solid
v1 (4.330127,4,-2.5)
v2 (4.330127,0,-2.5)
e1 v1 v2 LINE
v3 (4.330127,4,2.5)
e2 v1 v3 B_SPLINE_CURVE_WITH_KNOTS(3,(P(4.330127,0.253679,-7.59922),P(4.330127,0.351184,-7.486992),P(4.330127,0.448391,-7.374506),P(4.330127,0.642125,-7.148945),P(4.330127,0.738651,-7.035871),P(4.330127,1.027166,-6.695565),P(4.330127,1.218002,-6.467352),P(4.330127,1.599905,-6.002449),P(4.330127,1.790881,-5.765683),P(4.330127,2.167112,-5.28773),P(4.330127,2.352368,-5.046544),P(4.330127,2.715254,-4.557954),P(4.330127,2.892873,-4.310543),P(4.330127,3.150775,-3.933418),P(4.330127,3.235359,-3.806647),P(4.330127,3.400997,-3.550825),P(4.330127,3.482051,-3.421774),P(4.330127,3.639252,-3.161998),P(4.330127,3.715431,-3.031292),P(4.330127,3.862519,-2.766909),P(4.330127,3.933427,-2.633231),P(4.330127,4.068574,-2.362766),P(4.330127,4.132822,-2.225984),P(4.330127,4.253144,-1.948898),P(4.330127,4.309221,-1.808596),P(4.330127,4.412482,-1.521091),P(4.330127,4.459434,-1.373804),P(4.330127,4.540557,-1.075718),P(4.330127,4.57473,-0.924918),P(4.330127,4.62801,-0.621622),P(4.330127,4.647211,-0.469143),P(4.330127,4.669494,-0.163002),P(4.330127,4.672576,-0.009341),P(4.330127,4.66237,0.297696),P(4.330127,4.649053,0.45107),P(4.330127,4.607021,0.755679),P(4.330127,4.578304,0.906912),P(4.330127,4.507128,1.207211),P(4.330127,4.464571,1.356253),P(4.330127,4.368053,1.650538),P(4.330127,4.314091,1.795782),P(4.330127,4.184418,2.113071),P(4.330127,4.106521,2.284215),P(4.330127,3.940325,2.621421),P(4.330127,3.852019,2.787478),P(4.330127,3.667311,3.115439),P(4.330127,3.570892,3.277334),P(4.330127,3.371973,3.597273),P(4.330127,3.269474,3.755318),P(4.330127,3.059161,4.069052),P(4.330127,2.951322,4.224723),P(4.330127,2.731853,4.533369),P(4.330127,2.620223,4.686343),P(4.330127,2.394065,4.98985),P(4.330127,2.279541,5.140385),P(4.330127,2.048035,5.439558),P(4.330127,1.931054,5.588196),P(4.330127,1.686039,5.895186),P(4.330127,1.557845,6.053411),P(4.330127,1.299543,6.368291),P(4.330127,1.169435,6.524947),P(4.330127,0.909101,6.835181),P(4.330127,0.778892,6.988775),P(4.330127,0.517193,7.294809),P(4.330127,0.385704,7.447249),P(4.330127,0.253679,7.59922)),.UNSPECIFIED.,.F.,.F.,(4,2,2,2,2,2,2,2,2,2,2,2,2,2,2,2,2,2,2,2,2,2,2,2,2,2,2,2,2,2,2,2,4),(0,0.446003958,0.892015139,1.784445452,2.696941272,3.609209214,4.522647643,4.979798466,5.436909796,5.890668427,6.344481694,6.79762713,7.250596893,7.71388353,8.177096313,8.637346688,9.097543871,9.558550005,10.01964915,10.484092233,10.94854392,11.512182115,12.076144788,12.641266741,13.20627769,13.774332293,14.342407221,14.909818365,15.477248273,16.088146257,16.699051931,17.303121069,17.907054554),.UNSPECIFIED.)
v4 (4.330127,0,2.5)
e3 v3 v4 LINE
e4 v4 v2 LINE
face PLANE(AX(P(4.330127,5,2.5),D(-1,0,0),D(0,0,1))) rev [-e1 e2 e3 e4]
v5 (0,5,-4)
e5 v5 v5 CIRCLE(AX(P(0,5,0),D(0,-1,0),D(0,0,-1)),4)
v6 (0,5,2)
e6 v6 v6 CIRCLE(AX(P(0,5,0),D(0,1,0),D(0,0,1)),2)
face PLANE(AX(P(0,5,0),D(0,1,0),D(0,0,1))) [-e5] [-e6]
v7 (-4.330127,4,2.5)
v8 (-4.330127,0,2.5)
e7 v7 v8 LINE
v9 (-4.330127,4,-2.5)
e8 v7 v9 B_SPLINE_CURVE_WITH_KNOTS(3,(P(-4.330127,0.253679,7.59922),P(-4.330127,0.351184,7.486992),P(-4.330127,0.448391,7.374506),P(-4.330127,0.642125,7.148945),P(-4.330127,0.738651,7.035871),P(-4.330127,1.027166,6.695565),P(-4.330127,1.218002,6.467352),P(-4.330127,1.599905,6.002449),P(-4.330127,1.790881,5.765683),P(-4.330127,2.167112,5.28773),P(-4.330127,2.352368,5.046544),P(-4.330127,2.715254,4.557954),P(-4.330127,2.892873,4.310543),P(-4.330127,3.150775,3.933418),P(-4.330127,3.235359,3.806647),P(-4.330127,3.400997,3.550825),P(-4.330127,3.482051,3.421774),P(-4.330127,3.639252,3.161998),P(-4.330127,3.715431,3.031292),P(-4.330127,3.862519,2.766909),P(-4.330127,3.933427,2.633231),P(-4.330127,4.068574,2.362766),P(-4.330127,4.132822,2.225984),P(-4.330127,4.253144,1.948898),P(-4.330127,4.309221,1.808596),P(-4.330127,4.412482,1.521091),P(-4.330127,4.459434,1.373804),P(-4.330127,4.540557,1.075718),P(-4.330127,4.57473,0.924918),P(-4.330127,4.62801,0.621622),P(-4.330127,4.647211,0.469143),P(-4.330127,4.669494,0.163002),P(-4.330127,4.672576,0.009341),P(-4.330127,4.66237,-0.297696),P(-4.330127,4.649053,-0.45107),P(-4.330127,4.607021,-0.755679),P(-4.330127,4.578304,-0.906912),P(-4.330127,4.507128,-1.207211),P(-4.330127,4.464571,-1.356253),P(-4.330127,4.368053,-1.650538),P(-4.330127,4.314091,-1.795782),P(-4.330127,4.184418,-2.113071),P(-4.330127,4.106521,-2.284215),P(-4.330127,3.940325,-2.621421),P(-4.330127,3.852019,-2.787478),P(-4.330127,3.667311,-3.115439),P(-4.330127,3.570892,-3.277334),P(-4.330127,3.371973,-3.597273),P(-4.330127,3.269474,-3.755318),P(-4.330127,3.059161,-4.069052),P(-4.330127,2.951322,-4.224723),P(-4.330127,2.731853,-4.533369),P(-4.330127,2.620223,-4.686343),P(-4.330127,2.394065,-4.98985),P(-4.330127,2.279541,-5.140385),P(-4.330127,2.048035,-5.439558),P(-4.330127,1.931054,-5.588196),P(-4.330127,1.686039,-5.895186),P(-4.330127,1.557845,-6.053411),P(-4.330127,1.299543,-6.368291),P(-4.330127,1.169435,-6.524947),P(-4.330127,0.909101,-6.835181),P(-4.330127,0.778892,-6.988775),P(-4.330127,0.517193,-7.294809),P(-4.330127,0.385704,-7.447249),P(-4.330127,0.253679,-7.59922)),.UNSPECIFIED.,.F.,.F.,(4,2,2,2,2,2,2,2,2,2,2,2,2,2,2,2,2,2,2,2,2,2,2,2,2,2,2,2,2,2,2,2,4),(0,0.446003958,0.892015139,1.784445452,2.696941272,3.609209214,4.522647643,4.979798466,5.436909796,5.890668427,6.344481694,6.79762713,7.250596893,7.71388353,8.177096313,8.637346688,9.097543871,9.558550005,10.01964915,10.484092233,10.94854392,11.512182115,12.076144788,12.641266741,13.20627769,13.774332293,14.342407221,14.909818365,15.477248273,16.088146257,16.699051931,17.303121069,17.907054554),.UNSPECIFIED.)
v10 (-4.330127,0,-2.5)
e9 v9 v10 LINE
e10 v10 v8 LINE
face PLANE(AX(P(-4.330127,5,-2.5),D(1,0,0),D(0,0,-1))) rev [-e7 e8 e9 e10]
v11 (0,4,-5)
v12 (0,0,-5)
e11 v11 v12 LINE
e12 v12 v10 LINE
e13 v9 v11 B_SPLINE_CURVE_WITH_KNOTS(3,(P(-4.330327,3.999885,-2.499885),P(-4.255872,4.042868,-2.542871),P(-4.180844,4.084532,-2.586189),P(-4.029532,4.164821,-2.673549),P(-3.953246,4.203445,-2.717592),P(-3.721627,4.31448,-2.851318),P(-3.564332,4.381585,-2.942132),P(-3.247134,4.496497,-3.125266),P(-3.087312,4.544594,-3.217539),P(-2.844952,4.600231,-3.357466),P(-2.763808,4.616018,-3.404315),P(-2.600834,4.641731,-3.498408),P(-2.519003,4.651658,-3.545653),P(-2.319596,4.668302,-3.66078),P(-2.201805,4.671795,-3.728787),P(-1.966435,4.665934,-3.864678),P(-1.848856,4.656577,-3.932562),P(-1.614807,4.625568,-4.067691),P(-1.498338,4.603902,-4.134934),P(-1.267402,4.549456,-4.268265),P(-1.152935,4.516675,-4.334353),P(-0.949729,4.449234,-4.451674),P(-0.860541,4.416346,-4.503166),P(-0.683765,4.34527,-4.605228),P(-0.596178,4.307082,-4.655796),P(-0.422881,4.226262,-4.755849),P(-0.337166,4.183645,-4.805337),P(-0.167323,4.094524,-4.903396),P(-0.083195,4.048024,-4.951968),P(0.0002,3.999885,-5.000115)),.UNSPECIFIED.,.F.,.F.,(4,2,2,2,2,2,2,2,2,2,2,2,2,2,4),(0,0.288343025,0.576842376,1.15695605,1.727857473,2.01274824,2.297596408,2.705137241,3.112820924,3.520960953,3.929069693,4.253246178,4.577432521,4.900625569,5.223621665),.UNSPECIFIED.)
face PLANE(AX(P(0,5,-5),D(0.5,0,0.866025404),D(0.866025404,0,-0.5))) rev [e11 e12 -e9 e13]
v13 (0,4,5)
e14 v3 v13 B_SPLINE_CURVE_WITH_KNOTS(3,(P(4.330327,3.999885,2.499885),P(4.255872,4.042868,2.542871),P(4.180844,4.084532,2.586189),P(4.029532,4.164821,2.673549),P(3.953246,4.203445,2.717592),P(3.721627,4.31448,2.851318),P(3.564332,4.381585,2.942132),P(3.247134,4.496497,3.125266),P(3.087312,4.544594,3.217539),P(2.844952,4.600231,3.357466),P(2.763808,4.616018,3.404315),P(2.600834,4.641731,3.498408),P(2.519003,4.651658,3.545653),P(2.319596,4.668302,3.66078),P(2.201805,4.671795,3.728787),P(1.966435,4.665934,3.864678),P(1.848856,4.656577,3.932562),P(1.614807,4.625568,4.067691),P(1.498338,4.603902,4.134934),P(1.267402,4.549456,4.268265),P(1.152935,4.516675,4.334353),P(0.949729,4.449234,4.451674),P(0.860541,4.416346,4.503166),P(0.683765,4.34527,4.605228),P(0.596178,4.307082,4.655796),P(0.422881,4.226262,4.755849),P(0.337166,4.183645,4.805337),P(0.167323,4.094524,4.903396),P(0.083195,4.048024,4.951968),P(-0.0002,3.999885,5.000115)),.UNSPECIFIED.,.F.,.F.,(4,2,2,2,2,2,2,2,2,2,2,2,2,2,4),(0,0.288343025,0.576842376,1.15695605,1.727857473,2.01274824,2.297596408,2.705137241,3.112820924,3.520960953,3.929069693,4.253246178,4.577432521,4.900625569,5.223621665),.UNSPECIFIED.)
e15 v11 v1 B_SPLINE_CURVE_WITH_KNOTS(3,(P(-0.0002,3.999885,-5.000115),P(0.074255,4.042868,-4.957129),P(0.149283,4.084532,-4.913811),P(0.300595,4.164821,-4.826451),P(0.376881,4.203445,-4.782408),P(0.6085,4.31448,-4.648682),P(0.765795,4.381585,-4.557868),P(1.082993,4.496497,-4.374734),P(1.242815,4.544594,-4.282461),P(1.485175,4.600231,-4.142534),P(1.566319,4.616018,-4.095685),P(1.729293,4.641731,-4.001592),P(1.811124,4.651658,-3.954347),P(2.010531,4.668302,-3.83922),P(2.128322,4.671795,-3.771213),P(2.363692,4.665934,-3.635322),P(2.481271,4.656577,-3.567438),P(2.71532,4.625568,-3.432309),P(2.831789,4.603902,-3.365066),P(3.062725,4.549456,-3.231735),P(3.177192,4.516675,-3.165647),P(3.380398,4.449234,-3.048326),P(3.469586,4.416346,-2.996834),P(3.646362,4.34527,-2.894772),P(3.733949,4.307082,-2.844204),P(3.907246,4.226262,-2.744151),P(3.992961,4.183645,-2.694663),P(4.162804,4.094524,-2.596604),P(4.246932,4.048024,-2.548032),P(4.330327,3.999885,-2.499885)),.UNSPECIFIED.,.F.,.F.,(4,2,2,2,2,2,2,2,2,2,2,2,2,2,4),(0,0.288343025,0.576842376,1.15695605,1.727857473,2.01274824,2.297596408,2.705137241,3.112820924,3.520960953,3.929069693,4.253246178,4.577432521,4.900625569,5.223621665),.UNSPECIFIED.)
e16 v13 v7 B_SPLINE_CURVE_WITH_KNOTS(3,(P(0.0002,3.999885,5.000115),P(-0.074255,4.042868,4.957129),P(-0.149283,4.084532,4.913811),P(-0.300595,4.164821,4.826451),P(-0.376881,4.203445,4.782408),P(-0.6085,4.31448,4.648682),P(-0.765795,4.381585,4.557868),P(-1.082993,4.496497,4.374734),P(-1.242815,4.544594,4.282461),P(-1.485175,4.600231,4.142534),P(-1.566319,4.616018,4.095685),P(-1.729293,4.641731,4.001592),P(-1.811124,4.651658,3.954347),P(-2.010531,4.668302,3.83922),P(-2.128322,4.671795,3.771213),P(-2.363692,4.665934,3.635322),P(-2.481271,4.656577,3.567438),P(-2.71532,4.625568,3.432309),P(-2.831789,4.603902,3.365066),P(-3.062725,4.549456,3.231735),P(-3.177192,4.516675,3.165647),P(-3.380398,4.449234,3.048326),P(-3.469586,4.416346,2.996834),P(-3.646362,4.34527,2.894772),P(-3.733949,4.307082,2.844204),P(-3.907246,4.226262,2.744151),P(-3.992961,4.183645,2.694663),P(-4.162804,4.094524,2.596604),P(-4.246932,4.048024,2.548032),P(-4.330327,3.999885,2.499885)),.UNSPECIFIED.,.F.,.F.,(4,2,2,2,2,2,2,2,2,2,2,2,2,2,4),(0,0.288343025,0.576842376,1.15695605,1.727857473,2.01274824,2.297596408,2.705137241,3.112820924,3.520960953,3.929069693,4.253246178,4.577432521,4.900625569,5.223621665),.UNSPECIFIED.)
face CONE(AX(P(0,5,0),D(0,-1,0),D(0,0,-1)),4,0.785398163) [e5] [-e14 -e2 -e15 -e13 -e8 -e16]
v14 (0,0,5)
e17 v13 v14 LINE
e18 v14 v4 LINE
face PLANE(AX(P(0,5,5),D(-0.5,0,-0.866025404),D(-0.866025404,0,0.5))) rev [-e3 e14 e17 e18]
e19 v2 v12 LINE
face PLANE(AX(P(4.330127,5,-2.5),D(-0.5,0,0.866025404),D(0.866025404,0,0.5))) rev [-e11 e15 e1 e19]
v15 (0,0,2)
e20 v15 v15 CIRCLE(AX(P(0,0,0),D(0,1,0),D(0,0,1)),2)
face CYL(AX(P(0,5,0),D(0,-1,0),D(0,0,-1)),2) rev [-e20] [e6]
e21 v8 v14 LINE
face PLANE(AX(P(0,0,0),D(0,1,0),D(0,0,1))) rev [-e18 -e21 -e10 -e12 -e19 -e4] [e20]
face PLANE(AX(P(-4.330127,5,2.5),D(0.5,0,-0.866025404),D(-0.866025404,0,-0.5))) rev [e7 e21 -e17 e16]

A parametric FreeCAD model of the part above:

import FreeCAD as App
import Part
import Sketcher

V = App.Vector
Q = App.Units.Quantity

doc = App.newDocument("Part")
body = doc.addObject("PartDesign::Body", "Body")

sketch1 = doc.addObject("Sketcher::SketchObject", "Sketch")
body.addObject(sketch1)
sketch1.AttachmentSupport = (doc.XZ_Plane, [""])
sketch1.MapMode = "FlatFace"
sketch1.addGeometry([
    Part.LineSegment(V(0, -5, 0), V(-4.3, -2.5, 0)),
    Part.LineSegment(V(-4.3, -2.5, 0), V(-4.3, 2.5, 0)),
    Part.LineSegment(V(-4.3, 2.5, 0), V(0, 5, 0)),
    Part.LineSegment(V(0, 5, 0), V(4.3, 2.5, 0)),
    Part.LineSegment(V(4.3, 2.5, 0), V(4.3, -2.5, 0)),
    Part.LineSegment(V(4.3, -2.5, 0), V(0, -5, 0)),
    Part.Circle(V(0, 0, 0), V(0, 0, 1), 2),
], False)
sketch1.addConstraint([
    Sketcher.Constraint("Coincident", 0, 2, 1, 1),
    Sketcher.Constraint("Coincident", 1, 2, 2, 1),
    Sketcher.Constraint("Coincident", 2, 2, 3, 1),
    Sketcher.Constraint("Coincident", 3, 2, 4, 1),
    Sketcher.Constraint("Coincident", 4, 2, 5, 1),
    Sketcher.Constraint("Coincident", 5, 2, 0, 1),
    Sketcher.Constraint("Vertical", 1),
    Sketcher.Constraint("Vertical", 4),
    Sketcher.Constraint("Coincident", 6, 3, -1, 1),
    Sketcher.Constraint("Symmetric", 0, 2, 3, 2, -1, 1),
    Sketcher.Constraint("Symmetric", 2, 2, 5, 2, -1, 1),
    Sketcher.Constraint("PointOnObject", 2, 2, -2),
    Sketcher.Constraint("Parallel", 2, 5),
    Sketcher.Constraint("Horizontal", 1, 2, 3, 2),
    Sketcher.Constraint("Diameter", 6, Q("4 mm")),
    Sketcher.Constraint("DistanceY", 1, 1, 1, 2, Q("5 mm")),
    Sketcher.Constraint("Angle", 0, Q("150 deg")),
    Sketcher.Constraint("Distance", 0, Q("5 mm")),
])
pad1 = doc.addObject("PartDesign::Pad", "Pad")
body.addObject(pad1)
pad1.Profile = sketch1
pad1.Length = 5
pad1.Reversed = True

sketch2 = doc.addObject("Sketcher::SketchObject", "Sketch001")
body.addObject(sketch2)
sketch2.AttachmentSupport = (doc.YZ_Plane, [""])
sketch2.MapMode = "FlatFace"
sketch2.addGeometry([
    Part.LineSegment(V(5, -5, 0), V(5, -4, 0)),
    Part.LineSegment(V(5, -4, 0), V(4, -5, 0)),
    Part.LineSegment(V(4, -5, 0), V(5, -5, 0)),
], False)
sketch2.addConstraint([
    Sketcher.Constraint("Coincident", 0, 2, 1, 1),
    Sketcher.Constraint("Coincident", 1, 2, 2, 1),
    Sketcher.Constraint("Coincident", 2, 2, 0, 1),
    Sketcher.Constraint("Vertical", 0),
    Sketcher.Constraint("Horizontal", 2),
    Sketcher.Constraint("Equal", 2, 0),
    Sketcher.Constraint("DistanceX", 2, 1, 2, 2, Q("1 mm")),
    Sketcher.Constraint("DistanceX", -1, 1, 0, 2, Q("5 mm")),
    Sketcher.Constraint("DistanceY", 0, 2, -1, 1, Q("4 mm")),
])
groove = doc.addObject("PartDesign::Groove", "Groove")
body.addObject(groove)
groove.Profile = sketch2
groove.ReferenceAxis = (sketch2, ["H_Axis"])
groove.Angle = 360

doc.recompute()
